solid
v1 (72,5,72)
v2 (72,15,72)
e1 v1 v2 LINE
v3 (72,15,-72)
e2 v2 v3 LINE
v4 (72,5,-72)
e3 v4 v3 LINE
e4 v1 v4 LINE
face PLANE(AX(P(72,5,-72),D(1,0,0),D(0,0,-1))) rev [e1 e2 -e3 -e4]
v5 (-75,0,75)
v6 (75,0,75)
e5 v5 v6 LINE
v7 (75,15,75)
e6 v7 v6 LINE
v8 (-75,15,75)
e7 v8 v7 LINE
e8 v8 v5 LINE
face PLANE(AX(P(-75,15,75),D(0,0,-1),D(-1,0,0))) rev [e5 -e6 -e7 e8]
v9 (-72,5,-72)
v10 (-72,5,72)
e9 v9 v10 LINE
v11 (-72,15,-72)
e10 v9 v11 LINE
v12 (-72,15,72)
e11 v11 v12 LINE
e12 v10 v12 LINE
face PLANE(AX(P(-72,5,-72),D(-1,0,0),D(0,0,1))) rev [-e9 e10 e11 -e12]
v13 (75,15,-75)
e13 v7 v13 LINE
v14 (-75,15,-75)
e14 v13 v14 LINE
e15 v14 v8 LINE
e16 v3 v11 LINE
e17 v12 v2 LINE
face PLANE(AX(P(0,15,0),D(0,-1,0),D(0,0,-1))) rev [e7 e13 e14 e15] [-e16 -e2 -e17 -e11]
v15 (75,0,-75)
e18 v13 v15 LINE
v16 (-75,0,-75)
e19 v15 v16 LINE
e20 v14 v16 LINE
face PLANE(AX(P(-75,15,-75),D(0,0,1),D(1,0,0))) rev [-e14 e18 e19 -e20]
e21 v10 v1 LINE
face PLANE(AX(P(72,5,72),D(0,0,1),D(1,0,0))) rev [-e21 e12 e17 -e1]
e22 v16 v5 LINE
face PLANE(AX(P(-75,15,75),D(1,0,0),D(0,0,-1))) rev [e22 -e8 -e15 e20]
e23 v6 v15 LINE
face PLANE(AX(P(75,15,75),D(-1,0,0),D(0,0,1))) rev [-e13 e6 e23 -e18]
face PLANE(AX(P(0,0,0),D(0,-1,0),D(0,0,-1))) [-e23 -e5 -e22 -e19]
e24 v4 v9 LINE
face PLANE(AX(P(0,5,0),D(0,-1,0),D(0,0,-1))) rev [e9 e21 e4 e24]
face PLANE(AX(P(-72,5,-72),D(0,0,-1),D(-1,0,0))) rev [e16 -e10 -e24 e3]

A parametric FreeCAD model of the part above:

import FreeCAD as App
import Part
import Sketcher

V = App.Vector

doc = App.newDocument("Part")
params = doc.addObject("Spreadsheet::Sheet", "Params")
for row, (alias, value) in enumerate([
    ("sketch1_width", "150 mm"),
    ("pad1_length", "15 mm"),
    ("sketch2_width", "144 mm"),
    ("pocket1_length", "10 mm"),
], start=1):
    params.set(f"A{row}", alias)
    params.set(f"B{row}", "=" + value)
    params.setAlias(f"B{row}", alias)

body = doc.addObject("PartDesign::Body", "Body")

# Sketch on XZ plane
sketch1 = body.newObject("Sketcher::SketchObject", "Sketch")
sketch1.AttachmentSupport = (doc.getObject("XZ_Plane"), [""])
sketch1.MapMode = "FlatFace"
sketch1.addGeometry(Part.LineSegment(V(-75, -75, 0), V(-75, 75, 0)), False)
sketch1.addGeometry(Part.LineSegment(V(-75, 75, 0), V(75, 75, 0)), False)
sketch1.addGeometry(Part.LineSegment(V(75, 75, 0), V(75, -75, 0)), False)
sketch1.addGeometry(Part.LineSegment(V(75, -75, 0), V(-75, -75, 0)), False)
sketch1.addConstraint(Sketcher.Constraint("Coincident", 0, 2, 1, 1))
sketch1.addConstraint(Sketcher.Constraint("Coincident", 1, 2, 2, 1))
sketch1.addConstraint(Sketcher.Constraint("Coincident", 2, 2, 3, 1))
sketch1.addConstraint(Sketcher.Constraint("Coincident", 3, 2, 0, 1))
sketch1.addConstraint(Sketcher.Constraint("Vertical", 0))
sketch1.addConstraint(Sketcher.Constraint("Horizontal", 1))
sketch1.addConstraint(Sketcher.Constraint("Vertical", 2))
sketch1.addConstraint(Sketcher.Constraint("Horizontal", 3))
sketch1.addConstraint(Sketcher.Constraint("Symmetric", 0, 2, 2, 2, -1, 1))
sketch1.addConstraint(Sketcher.Constraint("Equal", 3, 0))
sketch1.addConstraint(Sketcher.Constraint("DistanceX", 1, 1, 1, 2, 150.0))
sketch1.setExpression("Constraints[10]", "Params.sketch1_width")
pad1 = body.newObject("PartDesign::Pad", "Pad")
pad1.Profile = sketch1
pad1.setExpression("Length", "Params.pad1_length")
pad1.Reversed = True

# Sketch on XZ plane
sketch2 = body.newObject("Sketcher::SketchObject", "Sketch001")
sketch2.AttachmentSupport = (doc.getObject("XZ_Plane"), [""])
sketch2.MapMode = "FlatFace"
sketch2.AttachmentOffset = App.Placement(V(0, 0, -15), App.Rotation())
sketch2.addGeometry(Part.LineSegment(V(-72, -72, 0), V(-72, 72, 0)), False)
sketch2.addGeometry(Part.LineSegment(V(-72, 72, 0), V(72, 72, 0)), False)
sketch2.addGeometry(Part.LineSegment(V(72, 72, 0), V(72, -72, 0)), False)
sketch2.addGeometry(Part.LineSegment(V(72, -72, 0), V(-72, -72, 0)), False)
sketch2.addConstraint(Sketcher.Constraint("Coincident", 0, 2, 1, 1))
sketch2.addConstraint(Sketcher.Constraint("Coincident", 1, 2, 2, 1))
sketch2.addConstraint(Sketcher.Constraint("Coincident", 2, 2, 3, 1))
sketch2.addConstraint(Sketcher.Constraint("Coincident", 3, 2, 0, 1))
sketch2.addConstraint(Sketcher.Constraint("Vertical", 0))
sketch2.addConstraint(Sketcher.Constraint("Horizontal", 1))
sketch2.addConstraint(Sketcher.Constraint("Vertical", 2))
sketch2.addConstraint(Sketcher.Constraint("Horizontal", 3))
sketch2.addConstraint(Sketcher.Constraint("Symmetric", 0, 2, 2, 2, -1, 1))
sketch2.addConstraint(Sketcher.Constraint("Equal", 3, 0))
sketch2.addConstraint(Sketcher.Constraint("DistanceX", 1, 1, 1, 2, 144.0))
sketch2.setExpression("Constraints[10]", "Params.sketch2_width")
pocket1 = body.newObject("PartDesign::Pocket", "Pocket")
pocket1.Profile = sketch2
pocket1.setExpression("Length", "Params.pocket1_length")
pocket1.Reversed = True

doc.recompute()
